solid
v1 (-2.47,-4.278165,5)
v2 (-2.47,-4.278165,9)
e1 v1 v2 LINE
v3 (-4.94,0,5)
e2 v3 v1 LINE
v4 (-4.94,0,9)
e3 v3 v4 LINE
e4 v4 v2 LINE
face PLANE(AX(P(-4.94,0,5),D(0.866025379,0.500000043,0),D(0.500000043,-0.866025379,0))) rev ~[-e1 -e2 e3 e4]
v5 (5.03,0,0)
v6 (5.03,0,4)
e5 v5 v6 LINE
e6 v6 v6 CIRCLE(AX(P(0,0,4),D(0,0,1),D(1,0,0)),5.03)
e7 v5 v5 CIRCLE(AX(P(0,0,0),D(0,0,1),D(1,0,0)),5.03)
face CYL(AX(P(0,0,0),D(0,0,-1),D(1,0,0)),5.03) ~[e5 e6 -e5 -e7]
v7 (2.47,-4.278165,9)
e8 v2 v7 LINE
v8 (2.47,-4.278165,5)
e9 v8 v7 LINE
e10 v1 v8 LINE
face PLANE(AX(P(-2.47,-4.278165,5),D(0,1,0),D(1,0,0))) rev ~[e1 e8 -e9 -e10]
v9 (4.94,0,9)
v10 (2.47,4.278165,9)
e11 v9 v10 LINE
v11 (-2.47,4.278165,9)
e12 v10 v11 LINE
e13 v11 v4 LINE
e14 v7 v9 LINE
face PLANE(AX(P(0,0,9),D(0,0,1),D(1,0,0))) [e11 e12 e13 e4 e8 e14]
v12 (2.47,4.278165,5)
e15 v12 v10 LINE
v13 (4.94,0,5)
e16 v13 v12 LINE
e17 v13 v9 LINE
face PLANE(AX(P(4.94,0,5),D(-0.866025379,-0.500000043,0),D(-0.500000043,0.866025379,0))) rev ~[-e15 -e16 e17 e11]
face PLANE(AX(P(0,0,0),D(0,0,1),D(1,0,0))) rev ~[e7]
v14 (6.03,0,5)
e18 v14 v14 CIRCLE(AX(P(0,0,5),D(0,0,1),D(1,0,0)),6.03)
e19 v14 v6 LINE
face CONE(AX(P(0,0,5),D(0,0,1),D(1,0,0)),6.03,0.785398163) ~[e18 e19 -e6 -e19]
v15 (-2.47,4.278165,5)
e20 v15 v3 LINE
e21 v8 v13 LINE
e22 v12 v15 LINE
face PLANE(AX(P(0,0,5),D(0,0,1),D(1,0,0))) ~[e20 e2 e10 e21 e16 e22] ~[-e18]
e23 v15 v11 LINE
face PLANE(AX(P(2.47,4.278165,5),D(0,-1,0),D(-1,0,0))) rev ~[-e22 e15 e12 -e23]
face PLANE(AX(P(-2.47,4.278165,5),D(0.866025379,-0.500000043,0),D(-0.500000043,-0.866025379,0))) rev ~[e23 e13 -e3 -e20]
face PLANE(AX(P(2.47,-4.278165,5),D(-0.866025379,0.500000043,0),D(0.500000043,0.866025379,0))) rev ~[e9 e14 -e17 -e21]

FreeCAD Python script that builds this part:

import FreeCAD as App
import Part
import Sketcher
Q = App.Units.Quantity


def add_polygon(sketch, points):
    """Adds a closed chain of lines whose ends are joined by coincident constraints."""
    first, n = sketch.GeometryCount, len(points)
    for a, b in zip(points, points[1:] + points[:1]):
        sketch.addGeometry(Part.LineSegment(App.Vector(*a, 0), App.Vector(*b, 0)), False)
    for i in range(n):
        sketch.addConstraint(Sketcher.Constraint("Coincident", first + i, 2, first + (i + 1) % n, 1))

doc = App.newDocument("Part")
body = doc.addObject("PartDesign::Body", "Body")

# Sketch on XY plane
sketch1 = doc.addObject("Sketcher::SketchObject", "Sketch")
body.addObject(sketch1)
sketch1.AttachmentSupport = (doc.XY_Plane, [""])
sketch1.MapMode = "FlatFace"
sketch1.addGeometry(Part.Circle(App.Vector(0, 0, 0), App.Vector(0, 0, 1), 5.03), False)
sketch1.addConstraint(Sketcher.Constraint("Coincident", 0, 3, -1, 1))
sketch1.addConstraint(Sketcher.Constraint("Diameter", 0, 10.06))
pad1 = doc.addObject("PartDesign::Pad", "Pad")
body.addObject(pad1)
pad1.Profile = sketch1
pad1.Length = 5

# Sketch on XY plane
sketch2 = doc.addObject("Sketcher::SketchObject", "Sketch001")
body.addObject(sketch2)
sketch2.AttachmentSupport = (doc.XY_Plane, [""])
sketch2.MapMode = "FlatFace"
sketch2.AttachmentOffset = App.Placement(App.Vector(0, 0, 5), App.Rotation())
add_polygon(sketch2, [(2.47, -4.278165), (4.94, 0), (2.47, 4.278165), (-2.47, 4.278165), (-4.94, 0), (-2.47, -4.278165)])  # lines 0-5
sketch2.addConstraint(Sketcher.Constraint("Horizontal", 2))
sketch2.addConstraint(Sketcher.Constraint("Horizontal", 5))
sketch2.addConstraint(Sketcher.Constraint("Symmetric", 0, 2, 3, 2, -1, 1))
sketch2.addConstraint(Sketcher.Constraint("Symmetric", 1, 2, 4, 2, -1, 1))
sketch2.addConstraint(Sketcher.Constraint("PointOnObject", 0, 2, -1))
sketch2.addConstraint(Sketcher.Constraint("Parallel", 0, 3))
sketch2.addConstraint(Sketcher.Constraint("Vertical", 2, 2, 4, 2))
sketch2.addConstraint(Sketcher.Constraint("Angle", 0, Q("59.999997 deg")))
sketch2.addConstraint(Sketcher.Constraint("DistanceX", 2, 2, 2, 1, 4.94))
sketch2.addConstraint(Sketcher.Constraint("Distance", 0, 4.94))
pad2 = doc.addObject("PartDesign::Pad", "Pad001")
body.addObject(pad2)
pad2.Profile = sketch2
pad2.Length = 4

# Sketch on XZ plane
sketch3 = doc.addObject("Sketcher::SketchObject", "Sketch002")
body.addObject(sketch3)
sketch3.AttachmentSupport = (doc.XZ_Plane, [""])
sketch3.MapMode = "FlatFace"
add_polygon(sketch3, [(6.03, 5), (5.03, 5), (5.03, 4)])  # lines 0-2
sketch3.addConstraint(Sketcher.Constraint("Horizontal", 0))
sketch3.addConstraint(Sketcher.Constraint("Vertical", 1))
sketch3.addConstraint(Sketcher.Constraint("Equal", 0, 1))
sketch3.addConstraint(Sketcher.Constraint("DistanceX", 0, 2, 0, 1, 1.0))
sketch3.addConstraint(Sketcher.Constraint("DistanceY", -1, 1, 0, 2, 5.0))
sketch3.addConstraint(Sketcher.Constraint("DistanceX", -1, 1, 0, 2, 5.03))
revolution = doc.addObject("PartDesign::Revolution", "Revolution")
body.addObject(revolution)
revolution.Profile = sketch3
revolution.ReferenceAxis = (sketch3, ["V_Axis"])
revolution.Angle = 360

doc.recompute()
